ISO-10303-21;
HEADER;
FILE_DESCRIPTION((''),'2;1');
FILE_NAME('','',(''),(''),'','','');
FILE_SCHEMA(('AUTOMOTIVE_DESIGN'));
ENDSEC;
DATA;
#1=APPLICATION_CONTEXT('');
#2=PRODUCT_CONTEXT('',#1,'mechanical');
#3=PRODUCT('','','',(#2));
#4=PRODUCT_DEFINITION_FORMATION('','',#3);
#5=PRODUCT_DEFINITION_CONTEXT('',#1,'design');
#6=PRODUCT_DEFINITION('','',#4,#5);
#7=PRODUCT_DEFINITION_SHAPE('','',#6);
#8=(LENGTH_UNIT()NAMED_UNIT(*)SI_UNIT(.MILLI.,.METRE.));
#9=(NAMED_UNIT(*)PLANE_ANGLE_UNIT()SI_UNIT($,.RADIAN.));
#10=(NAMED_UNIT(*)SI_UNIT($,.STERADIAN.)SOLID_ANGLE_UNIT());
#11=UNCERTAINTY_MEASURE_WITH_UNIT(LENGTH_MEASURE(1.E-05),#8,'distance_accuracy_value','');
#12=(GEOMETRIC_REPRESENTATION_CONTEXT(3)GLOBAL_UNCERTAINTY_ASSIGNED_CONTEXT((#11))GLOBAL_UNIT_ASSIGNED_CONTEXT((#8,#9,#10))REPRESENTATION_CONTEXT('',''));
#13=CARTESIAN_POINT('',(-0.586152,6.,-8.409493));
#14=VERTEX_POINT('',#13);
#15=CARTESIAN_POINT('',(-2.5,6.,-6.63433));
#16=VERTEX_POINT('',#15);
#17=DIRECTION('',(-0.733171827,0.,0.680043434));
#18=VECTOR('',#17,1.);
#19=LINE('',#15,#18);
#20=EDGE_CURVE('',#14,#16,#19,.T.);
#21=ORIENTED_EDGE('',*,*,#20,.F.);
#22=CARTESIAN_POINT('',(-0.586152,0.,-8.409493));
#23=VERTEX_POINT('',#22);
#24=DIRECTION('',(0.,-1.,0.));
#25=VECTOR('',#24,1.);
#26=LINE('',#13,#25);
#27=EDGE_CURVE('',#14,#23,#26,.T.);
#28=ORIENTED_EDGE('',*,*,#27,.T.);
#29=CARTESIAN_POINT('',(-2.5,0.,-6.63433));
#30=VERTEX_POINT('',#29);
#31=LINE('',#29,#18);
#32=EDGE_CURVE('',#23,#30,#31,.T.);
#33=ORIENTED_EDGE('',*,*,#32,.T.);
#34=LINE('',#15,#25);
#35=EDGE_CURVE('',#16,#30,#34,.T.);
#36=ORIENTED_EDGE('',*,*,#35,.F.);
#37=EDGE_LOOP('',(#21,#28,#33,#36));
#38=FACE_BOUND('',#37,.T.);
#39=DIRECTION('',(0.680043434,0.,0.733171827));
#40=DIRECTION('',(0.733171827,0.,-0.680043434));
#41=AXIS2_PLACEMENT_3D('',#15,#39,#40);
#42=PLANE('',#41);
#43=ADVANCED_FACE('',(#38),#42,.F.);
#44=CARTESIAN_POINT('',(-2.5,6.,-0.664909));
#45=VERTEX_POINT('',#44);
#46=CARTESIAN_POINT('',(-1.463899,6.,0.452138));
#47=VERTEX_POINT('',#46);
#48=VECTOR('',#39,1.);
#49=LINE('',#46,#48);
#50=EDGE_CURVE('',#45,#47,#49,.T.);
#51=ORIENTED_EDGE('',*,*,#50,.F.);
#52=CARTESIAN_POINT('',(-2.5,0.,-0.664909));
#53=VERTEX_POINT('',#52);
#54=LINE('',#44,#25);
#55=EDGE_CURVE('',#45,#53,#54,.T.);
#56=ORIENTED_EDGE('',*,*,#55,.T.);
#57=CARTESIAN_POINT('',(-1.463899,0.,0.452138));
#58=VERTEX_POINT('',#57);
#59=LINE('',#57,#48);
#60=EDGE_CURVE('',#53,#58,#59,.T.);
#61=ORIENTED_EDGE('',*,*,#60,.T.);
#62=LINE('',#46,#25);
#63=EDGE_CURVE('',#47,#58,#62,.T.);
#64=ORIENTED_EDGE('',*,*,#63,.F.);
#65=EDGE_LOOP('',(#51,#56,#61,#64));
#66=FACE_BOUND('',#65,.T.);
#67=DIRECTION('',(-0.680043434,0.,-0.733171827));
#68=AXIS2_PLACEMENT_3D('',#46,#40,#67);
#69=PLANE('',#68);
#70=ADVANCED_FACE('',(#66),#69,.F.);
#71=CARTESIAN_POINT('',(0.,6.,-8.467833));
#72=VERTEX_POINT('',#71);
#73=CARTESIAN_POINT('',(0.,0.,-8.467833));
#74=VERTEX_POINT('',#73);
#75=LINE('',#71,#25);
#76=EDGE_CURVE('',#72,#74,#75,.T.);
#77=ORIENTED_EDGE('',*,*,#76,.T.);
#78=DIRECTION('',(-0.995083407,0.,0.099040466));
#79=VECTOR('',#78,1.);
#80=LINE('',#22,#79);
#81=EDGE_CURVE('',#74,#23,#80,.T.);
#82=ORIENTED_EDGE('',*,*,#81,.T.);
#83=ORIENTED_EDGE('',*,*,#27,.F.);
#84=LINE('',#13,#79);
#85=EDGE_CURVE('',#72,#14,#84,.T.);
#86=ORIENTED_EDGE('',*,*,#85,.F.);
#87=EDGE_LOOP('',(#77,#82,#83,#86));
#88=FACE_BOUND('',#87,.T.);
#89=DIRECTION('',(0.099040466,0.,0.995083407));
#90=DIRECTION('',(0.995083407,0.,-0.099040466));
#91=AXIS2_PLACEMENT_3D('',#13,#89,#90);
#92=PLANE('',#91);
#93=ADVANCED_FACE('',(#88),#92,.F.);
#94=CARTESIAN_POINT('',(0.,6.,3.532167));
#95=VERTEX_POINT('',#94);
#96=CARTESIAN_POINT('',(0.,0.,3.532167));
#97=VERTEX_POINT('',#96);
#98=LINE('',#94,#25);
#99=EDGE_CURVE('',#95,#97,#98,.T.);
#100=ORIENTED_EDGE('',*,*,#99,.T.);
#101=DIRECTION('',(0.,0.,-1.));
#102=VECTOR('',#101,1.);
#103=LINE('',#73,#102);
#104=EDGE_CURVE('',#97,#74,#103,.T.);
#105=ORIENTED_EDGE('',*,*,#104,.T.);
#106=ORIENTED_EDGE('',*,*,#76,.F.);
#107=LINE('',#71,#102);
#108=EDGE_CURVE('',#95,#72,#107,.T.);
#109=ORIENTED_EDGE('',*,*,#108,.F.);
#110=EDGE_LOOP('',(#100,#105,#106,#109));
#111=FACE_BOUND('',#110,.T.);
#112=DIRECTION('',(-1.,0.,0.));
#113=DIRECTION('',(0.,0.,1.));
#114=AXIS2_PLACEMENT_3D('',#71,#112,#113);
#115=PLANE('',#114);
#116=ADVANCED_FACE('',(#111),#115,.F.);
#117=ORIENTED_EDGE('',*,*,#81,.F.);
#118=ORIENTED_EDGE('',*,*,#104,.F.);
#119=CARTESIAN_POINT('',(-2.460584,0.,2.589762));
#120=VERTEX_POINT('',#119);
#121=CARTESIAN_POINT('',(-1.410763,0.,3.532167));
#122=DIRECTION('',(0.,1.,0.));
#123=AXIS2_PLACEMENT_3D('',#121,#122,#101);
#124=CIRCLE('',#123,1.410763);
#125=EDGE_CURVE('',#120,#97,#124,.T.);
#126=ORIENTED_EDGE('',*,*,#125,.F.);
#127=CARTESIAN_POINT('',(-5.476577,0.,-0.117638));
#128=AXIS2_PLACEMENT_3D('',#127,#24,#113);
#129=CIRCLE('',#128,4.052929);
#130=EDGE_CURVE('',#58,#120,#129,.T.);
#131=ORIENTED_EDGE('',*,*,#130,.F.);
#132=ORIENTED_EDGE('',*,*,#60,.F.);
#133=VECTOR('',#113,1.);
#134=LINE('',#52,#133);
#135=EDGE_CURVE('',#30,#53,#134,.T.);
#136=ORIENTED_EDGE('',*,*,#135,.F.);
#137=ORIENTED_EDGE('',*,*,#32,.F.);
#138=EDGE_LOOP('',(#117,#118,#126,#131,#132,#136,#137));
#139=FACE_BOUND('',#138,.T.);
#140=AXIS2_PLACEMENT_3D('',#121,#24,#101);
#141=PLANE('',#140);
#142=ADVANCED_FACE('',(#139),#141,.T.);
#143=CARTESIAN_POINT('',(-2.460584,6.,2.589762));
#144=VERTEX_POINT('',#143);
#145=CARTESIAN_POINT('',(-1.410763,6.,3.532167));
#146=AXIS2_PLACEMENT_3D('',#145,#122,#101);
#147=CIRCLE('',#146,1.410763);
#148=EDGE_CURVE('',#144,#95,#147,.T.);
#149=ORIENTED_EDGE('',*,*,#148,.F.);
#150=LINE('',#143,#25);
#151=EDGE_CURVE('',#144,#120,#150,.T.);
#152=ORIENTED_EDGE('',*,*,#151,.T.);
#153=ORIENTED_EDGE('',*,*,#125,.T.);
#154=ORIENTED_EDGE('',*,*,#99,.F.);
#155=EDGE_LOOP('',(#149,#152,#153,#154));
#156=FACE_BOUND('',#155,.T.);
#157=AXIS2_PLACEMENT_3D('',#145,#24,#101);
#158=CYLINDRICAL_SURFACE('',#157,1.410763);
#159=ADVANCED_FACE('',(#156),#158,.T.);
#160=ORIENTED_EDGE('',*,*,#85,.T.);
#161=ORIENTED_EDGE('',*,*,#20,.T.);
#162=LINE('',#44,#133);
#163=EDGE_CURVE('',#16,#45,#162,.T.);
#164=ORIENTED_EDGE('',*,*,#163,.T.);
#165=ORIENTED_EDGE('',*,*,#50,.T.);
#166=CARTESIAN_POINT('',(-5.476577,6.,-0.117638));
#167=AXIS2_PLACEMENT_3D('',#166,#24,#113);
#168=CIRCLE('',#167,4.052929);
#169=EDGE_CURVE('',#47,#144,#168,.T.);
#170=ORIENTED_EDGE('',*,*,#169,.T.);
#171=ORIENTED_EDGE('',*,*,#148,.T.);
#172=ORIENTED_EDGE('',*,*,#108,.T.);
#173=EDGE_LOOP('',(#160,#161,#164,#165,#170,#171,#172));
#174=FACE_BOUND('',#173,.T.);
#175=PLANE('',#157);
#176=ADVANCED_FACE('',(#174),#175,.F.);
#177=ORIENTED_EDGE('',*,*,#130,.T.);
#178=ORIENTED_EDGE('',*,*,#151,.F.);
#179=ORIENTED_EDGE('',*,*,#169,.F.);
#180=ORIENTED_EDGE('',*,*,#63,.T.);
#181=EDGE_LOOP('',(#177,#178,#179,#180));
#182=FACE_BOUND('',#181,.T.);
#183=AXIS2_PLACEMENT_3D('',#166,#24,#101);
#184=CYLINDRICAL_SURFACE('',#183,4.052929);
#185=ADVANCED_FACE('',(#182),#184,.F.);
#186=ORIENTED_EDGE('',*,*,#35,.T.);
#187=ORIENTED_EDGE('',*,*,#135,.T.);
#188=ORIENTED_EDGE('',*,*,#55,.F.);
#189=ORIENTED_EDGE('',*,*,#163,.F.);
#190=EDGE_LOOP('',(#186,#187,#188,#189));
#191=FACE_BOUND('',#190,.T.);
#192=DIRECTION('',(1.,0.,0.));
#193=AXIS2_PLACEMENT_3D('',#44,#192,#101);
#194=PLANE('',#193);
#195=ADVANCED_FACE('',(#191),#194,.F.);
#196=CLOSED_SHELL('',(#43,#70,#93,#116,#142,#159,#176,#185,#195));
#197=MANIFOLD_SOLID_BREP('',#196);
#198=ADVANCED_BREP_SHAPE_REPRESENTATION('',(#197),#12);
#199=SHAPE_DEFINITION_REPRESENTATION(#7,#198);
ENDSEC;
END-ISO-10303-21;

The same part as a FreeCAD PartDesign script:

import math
import FreeCAD as App
import Part
import Sketcher
Q = App.Units.Quantity

doc = App.newDocument("Part")
body = doc.addObject("PartDesign::Body", "Body")

# Sketch on XZ plane
sketch1 = body.newObject("Sketcher::SketchObject", "Sketch")
sketch1.AttachmentSupport = (doc.getObject("XZ_Plane"), [""])
sketch1.MapMode = "FlatFace"
sketch1.addGeometry([
    Part.LineSegment(App.Vector(0, 3.532167, 0), App.Vector(0, -8.467833, 0)),  # 0
    Part.LineSegment(App.Vector(0, -8.467833, 0), App.Vector(-0.586152, -8.409493, 0)),  # 1
    Part.LineSegment(App.Vector(-0.586152, -8.409493, 0), App.Vector(-2.5, -6.63433, 0)),  # 2
    Part.LineSegment(App.Vector(-2.5, -6.63433, 0), App.Vector(-2.5, -0.664909, 0)),  # 3
    Part.LineSegment(App.Vector(-2.5, -0.664909, 0), App.Vector(-1.463899, 0.452138, 0)),  # 4
    Part.ArcOfCircle(Part.Circle(App.Vector(-5.476577, -0.117638, 0), App.Vector(0, 0, 1), 4.052929), math.radians(8.081628), math.radians(41.913725)),  # 5
    Part.ArcOfCircle(Part.Circle(App.Vector(-1.410763, 3.532167, 0), App.Vector(0, 0, 1), 1.410763), math.radians(0), math.radians(221.913725)),  # 6
], False)
sketch1.addConstraint([
    Sketcher.Constraint("Coincident", 0, 2, 1, 1),
    Sketcher.Constraint("Coincident", 1, 2, 2, 1),
    Sketcher.Constraint("Coincident", 2, 2, 3, 1),
    Sketcher.Constraint("Coincident", 3, 2, 4, 1),
    Sketcher.Constraint("Coincident", 4, 2, 5, 1),
    Sketcher.Constraint("Tangent", 5, 2, 6, 2),
    Sketcher.Constraint("Tangent", 6, 1, 0, 1),
    Sketcher.Constraint("Vertical", 0),
    Sketcher.Constraint("Vertical", 3),
    Sketcher.Constraint("PointOnObject", 0, 2, -2),
    Sketcher.Constraint("Perpendicular", 2, 4),
    Sketcher.Constraint("DistanceY", 0, 2, 0, 1, Q("12 mm")),
    Sketcher.Constraint("DistanceX", 2, 2, -1, 1, Q("2.5 mm")),
    Sketcher.Constraint("Radius", 5, Q("4.052929 mm")),
    Sketcher.Constraint("Radius", 6, Q("1.410763 mm")),
    Sketcher.Constraint("DistanceY", 3, 1, 3, 2, Q("5.969421 mm")),
    Sketcher.Constraint("DistanceX", 4, 2, -1, 1, Q("1.463899 mm")),
    Sketcher.Constraint("DistanceY", 5, 3, 5, 2, Q("2.7074 mm")),
    Sketcher.Constraint("Distance", 1, Q("0.589048 mm")),
    Sketcher.Constraint("Distance", 4, Q("1.523581 mm")),
    Sketcher.Constraint("DistanceY", 5, 3, -1, 1, Q("0.117638 mm")),
])
pad1 = body.newObject("PartDesign::Pad", "Pad")
pad1.Profile = sketch1
pad1.Length = 6
pad1.Reversed = True

doc.recompute()
